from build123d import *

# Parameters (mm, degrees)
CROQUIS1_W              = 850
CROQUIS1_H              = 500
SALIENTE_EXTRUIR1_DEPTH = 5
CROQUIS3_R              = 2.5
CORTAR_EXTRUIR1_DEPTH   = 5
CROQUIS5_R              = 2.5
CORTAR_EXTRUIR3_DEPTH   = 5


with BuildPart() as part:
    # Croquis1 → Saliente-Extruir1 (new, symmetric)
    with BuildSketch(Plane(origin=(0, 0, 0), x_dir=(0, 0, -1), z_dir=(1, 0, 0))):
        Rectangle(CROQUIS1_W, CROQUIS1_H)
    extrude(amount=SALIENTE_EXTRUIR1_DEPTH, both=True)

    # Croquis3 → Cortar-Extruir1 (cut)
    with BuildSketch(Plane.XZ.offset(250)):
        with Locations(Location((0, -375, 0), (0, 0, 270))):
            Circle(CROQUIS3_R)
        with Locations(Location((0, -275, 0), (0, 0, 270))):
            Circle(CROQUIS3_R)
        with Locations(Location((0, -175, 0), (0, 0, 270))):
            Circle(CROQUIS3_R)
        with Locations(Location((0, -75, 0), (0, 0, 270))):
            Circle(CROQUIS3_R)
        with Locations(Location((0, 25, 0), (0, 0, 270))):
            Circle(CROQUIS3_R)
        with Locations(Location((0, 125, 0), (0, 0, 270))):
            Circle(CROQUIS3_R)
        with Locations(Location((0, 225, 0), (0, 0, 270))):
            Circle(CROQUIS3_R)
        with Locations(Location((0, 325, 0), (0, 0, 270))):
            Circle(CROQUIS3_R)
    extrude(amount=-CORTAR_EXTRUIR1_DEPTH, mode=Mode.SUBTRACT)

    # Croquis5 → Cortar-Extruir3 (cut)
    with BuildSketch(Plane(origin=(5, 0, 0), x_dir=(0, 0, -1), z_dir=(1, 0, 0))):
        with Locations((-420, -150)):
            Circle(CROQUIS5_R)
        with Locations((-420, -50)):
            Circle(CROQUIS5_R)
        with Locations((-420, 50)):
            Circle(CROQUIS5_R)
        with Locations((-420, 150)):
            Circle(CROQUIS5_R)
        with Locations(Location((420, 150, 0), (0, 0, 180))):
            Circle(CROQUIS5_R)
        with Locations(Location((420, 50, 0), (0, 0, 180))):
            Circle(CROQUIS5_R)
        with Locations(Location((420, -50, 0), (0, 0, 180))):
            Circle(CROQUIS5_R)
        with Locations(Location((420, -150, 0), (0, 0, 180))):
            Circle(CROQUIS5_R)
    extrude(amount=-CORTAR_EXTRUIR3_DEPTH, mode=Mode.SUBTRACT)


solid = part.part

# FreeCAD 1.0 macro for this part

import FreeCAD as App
import Part
import Sketcher

V = App.Vector
Q = App.Units.Quantity

doc = App.newDocument("Part")
body = doc.addObject("PartDesign::Body", "Body")

# Sketch on YZ plane
sketch1 = doc.addObject("Sketcher::SketchObject", "Sketch")
body.addObject(sketch1)
sketch1.AttachmentSupport = (doc.YZ_Plane, [""])
sketch1.MapMode = "FlatFace"
sketch1.addGeometry([
    Part.LineSegment(V(250, 425, 0), V(-250, 425, 0)),
    Part.LineSegment(V(-250, 425, 0), V(-250, -425, 0)),
    Part.LineSegment(V(-250, -425, 0), V(250, -425, 0)),
    Part.LineSegment(V(250, -425, 0), V(250, 425, 0)),
], False)
sketch1.addConstraint([
    Sketcher.Constraint("Coincident", 0, 2, 1, 1),
    Sketcher.Constraint("Coincident", 1, 2, 2, 1),
    Sketcher.Constraint("Coincident", 2, 2, 3, 1),
    Sketcher.Constraint("Coincident", 3, 2, 0, 1),
    Sketcher.Constraint("Horizontal", 0),
    Sketcher.Constraint("Vertical", 1),
    Sketcher.Constraint("Horizontal", 2),
    Sketcher.Constraint("Vertical", 3),
    Sketcher.Constraint("Symmetric", 0, 2, 2, 2, -1, 1),
    Sketcher.Constraint("DistanceX", 0, 2, 0, 1, Q("500 mm")),
    Sketcher.Constraint("DistanceY", 1, 2, 1, 1, Q("850 mm")),
])
pad1 = doc.addObject("PartDesign::Pad", "Pad")
body.addObject(pad1)
pad1.Profile = sketch1
pad1.Length = 10
pad1.Midplane = True

# Sketch on XZ plane
sketch2 = doc.addObject("Sketcher::SketchObject", "Sketch001")
body.addObject(sketch2)
sketch2.AttachmentSupport = (doc.XZ_Plane, [""])
sketch2.MapMode = "FlatFace"
sketch2.AttachmentOffset = App.Placement(V(0, 0, 250), App.Rotation())
sketch2.addGeometry([
    Part.Circle(V(0, -375, 0), V(0, 0, 1), 2.5),  # 0
    Part.Circle(V(0, -275, 0), V(0, 0, 1), 2.5),  # 1
    Part.Circle(V(0, -175, 0), V(0, 0, 1), 2.5),  # 2
    Part.Circle(V(0, -75, 0), V(0, 0, 1), 2.5),  # 3
    Part.Circle(V(0, 25, 0), V(0, 0, 1), 2.5),  # 4
    Part.Circle(V(0, 125, 0), V(0, 0, 1), 2.5),  # 5
    Part.Circle(V(0, 225, 0), V(0, 0, 1), 2.5),  # 6
    Part.Circle(V(0, 325, 0), V(0, 0, 1), 2.5),  # 7
], False)
sketch2.addConstraint([
    Sketcher.Constraint("Equal", 0, 1),
    Sketcher.Constraint("Equal", 1, 2),
    Sketcher.Constraint("Equal", 2, 3),
    Sketcher.Constraint("Equal", 3, 4),
    Sketcher.Constraint("Equal", 4, 5),
    Sketcher.Constraint("Equal", 5, 6),
    Sketcher.Constraint("Equal", 6, 7),
    Sketcher.Constraint("PointOnObject", 0, 3, -2),
    Sketcher.Constraint("PointOnObject", 1, 3, -2),
    Sketcher.Constraint("PointOnObject", 2, 3, -2),
    Sketcher.Constraint("PointOnObject", 3, 3, -2),
    Sketcher.Constraint("PointOnObject", 4, 3, -2),
    Sketcher.Constraint("PointOnObject", 5, 3, -2),
    Sketcher.Constraint("PointOnObject", 6, 3, -2),
    Sketcher.Constraint("PointOnObject", 7, 3, -2),
    Sketcher.Constraint("Diameter", 0, Q("5 mm")),
    Sketcher.Constraint("DistanceY", 0, 3, -1, 1, Q("375 mm")),
    Sketcher.Constraint("DistanceY", 1, 3, -1, 1, Q("275 mm")),
    Sketcher.Constraint("DistanceY", 2, 3, -1, 1, Q("175 mm")),
    Sketcher.Constraint("DistanceY", 3, 3, -1, 1, Q("75 mm")),
    Sketcher.Constraint("DistanceY", -1, 1, 4, 3, Q("25 mm")),
    Sketcher.Constraint("DistanceY", -1, 1, 5, 3, Q("125 mm")),
    Sketcher.Constraint("DistanceY", -1, 1, 6, 3, Q("225 mm")),
    Sketcher.Constraint("DistanceY", -1, 1, 7, 3, Q("325 mm")),
])
pocket1 = doc.addObject("PartDesign::Pocket", "Pocket")
body.addObject(pocket1)
pocket1.Profile = sketch2
pocket1.Length = 5

# Sketch on YZ plane
sketch3 = doc.addObject("Sketcher::SketchObject", "Sketch002")
body.addObject(sketch3)
sketch3.AttachmentSupport = (doc.YZ_Plane, [""])
sketch3.MapMode = "FlatFace"
sketch3.AttachmentOffset = App.Placement(V(0, 0, 5), App.Rotation())
sketch3.addGeometry([
    Part.Circle(V(-150, 420, 0), V(0, 0, 1), 2.5),  # 0
    Part.Circle(V(-50, 420, 0), V(0, 0, 1), 2.5),  # 1
    Part.Circle(V(50, 420, 0), V(0, 0, 1), 2.5),  # 2
    Part.Circle(V(150, 420, 0), V(0, 0, 1), 2.5),  # 3
    Part.Circle(V(150, -420, 0), V(0, 0, 1), 2.5),  # 4
    Part.Circle(V(50, -420, 0), V(0, 0, 1), 2.5),  # 5
    Part.Circle(V(-50, -420, 0), V(0, 0, 1), 2.5),  # 6
    Part.Circle(V(-150, -420, 0), V(0, 0, 1), 2.5),  # 7
], False)
sketch3.addConstraint([
    Sketcher.Constraint("Equal", 0, 1),
    Sketcher.Constraint("Equal", 1, 2),
    Sketcher.Constraint("Equal", 2, 3),
    Sketcher.Constraint("Equal", 3, 4),
    Sketcher.Constraint("Equal", 4, 5),
    Sketcher.Constraint("Equal", 5, 6),
    Sketcher.Constraint("Equal", 6, 7),
    Sketcher.Constraint("Symmetric", 0, 3, 4, 3, -1, 1),
    Sketcher.Constraint("Symmetric", 1, 3, 5, 3, -1, 1),
    Sketcher.Constraint("Symmetric", 2, 3, 6, 3, -1, 1),
    Sketcher.Constraint("Symmetric", 3, 3, 7, 3, -1, 1),
    Sketcher.Constraint("Symmetric", 1, 3, 2, 3, -2),
    Sketcher.Constraint("Symmetric", 0, 3, 3, 3, -2),
    Sketcher.Constraint("Horizontal", 0, 3, 1, 3),
    Sketcher.Constraint("Diameter", 0, Q("5 mm")),
    Sketcher.Constraint("DistanceX", 0, 3, -1, 1, Q("150 mm")),
    Sketcher.Constraint("DistanceY", -1, 1, 0, 3, Q("420 mm")),
    Sketcher.Constraint("DistanceX", 1, 3, -1, 1, Q("50 mm")),
])
pocket2 = doc.addObject("PartDesign::Pocket", "Pocket001")
body.addObject(pocket2)
pocket2.Profile = sketch3
pocket2.Length = 5

doc.recompute()
